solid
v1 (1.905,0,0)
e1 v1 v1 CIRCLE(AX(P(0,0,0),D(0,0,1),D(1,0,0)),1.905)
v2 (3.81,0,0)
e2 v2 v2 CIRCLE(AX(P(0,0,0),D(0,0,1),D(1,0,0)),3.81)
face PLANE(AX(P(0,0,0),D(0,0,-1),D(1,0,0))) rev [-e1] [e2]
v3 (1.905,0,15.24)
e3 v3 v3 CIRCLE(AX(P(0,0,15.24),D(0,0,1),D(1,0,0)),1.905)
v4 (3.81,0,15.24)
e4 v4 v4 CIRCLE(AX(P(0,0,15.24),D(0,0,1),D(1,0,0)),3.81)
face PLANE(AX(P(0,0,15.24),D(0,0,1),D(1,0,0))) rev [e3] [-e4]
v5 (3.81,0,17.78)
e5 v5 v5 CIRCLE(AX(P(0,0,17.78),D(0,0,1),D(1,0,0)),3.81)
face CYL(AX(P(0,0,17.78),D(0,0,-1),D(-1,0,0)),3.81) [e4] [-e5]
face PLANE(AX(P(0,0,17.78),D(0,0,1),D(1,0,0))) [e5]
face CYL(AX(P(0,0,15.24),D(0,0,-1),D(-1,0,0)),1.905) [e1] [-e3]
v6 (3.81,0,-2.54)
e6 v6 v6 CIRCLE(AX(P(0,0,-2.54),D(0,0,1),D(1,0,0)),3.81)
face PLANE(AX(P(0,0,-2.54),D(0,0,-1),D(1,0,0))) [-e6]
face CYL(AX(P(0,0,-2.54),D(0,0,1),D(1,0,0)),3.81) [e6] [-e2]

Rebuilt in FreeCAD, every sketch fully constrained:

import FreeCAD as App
import Part
import Sketcher
from FreeCAD import Vector
Q = App.Units.Quantity

doc = App.newDocument("Part")
body = doc.addObject("PartDesign::Body", "Body")

# Sketch on XY plane
sketch1 = doc.addObject("Sketcher::SketchObject", "Sketch")
body.addObject(sketch1)
sketch1.AttachmentSupport = (doc.XY_Plane, [""])
sketch1.MapMode = "FlatFace"
sketch1.addGeometry(Part.Circle(Vector(0, 0, 0), Vector(0, 0, 1), 1.9), False)
sketch1.addConstraint([
    Sketcher.Constraint("Coincident", 0, 3, -1, 1),
    Sketcher.Constraint("Diameter", 0, Q("0.15 in")),
])
pad1 = doc.addObject("PartDesign::Pad", "Pad")
body.addObject(pad1)
pad1.Profile = sketch1
pad1.Length = Q("0.6 in")

# Sketch on XY plane
sketch2 = doc.addObject("Sketcher::SketchObject", "Sketch001")
body.addObject(sketch2)
sketch2.AttachmentSupport = (doc.XY_Plane, [""])
sketch2.MapMode = "FlatFace"
sketch2.AttachmentOffset = App.Placement(Vector(0, 0, 0.6 * 25.4), App.Rotation())
sketch2.addGeometry(Part.Circle(Vector(0, 0, 0), Vector(0, 0, 1), 3.8), False)
sketch2.addConstraint([
    Sketcher.Constraint("Coincident", 0, 3, -1, 1),
    Sketcher.Constraint("Diameter", 0, Q("0.3 in")),
])
pad2 = doc.addObject("PartDesign::Pad", "Pad001")
body.addObject(pad2)
pad2.Profile = sketch2
pad2.Length = Q("0.1 in")
doc.recompute()

datumplane = doc.addObject("PartDesign::Plane", "DatumPlane")
body.addObject(datumplane)
datumplane.AttachmentSupport = (doc.XY_Plane, [""])
datumplane.MapMode = "FlatFace"
datumplane.AttachmentOffset = App.Placement(Vector(0, 0, 0.3 * 25.4), App.Rotation())
mirrored = doc.addObject("PartDesign::Mirrored", "Mirrored")
body.addObject(mirrored)
mirrored.Originals = [pad2]
mirrored.MirrorPlane = (datumplane, [""])
body.Tip = mirrored

doc.recompute()
